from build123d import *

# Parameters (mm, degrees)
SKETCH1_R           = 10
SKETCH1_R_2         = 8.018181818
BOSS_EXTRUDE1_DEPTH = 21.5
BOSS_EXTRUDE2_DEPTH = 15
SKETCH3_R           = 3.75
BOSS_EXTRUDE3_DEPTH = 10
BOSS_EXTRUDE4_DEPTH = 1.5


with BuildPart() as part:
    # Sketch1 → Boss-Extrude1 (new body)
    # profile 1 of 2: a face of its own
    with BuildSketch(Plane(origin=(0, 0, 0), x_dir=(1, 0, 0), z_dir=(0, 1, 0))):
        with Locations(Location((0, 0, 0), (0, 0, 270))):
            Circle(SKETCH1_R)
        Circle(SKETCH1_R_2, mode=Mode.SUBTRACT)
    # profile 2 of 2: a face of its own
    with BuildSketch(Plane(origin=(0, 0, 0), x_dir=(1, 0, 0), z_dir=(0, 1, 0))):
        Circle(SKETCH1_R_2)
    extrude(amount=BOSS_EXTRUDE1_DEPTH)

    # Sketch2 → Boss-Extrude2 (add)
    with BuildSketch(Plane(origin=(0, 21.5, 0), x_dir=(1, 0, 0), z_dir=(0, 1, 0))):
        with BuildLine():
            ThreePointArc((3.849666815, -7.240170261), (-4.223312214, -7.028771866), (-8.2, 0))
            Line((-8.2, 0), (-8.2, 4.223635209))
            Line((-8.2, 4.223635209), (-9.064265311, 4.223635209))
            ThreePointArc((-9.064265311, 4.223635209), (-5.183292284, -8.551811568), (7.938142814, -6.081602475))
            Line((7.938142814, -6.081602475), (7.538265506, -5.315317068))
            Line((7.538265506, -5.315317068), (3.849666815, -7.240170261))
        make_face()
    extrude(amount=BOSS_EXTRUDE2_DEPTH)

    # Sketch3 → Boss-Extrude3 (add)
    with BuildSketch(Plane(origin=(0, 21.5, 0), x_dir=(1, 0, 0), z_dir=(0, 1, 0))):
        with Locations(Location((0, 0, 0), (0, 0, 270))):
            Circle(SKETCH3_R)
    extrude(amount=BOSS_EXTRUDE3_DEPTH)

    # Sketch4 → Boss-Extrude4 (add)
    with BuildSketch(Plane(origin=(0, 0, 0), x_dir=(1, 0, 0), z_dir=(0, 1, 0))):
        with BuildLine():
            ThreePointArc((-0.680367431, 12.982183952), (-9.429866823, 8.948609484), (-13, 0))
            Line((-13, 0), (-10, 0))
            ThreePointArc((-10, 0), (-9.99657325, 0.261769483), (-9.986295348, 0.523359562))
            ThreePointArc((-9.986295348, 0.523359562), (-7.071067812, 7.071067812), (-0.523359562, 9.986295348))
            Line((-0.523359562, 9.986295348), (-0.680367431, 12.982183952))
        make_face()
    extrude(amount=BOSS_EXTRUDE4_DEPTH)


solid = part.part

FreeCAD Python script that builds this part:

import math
import FreeCAD as App
import Part
import Sketcher
from FreeCAD import Vector
Q = App.Units.Quantity

doc = App.newDocument("Part")
body = doc.addObject("PartDesign::Body", "Body")

sketch1 = doc.addObject("Sketcher::SketchObject", "Sketch")
body.addObject(sketch1)
sketch1.AttachmentSupport = (doc.XZ_Plane, [""])
sketch1.MapMode = "FlatFace"
sketch1.addGeometry(Part.Circle(Vector(0, 0, 0), Vector(0, 0, 1), 10), False)
sketch1.addConstraint(Sketcher.Constraint("Coincident", 0, 3, -1, 1))
sketch1.addConstraint(Sketcher.Constraint("Diameter", 0, Q("20 mm")))
pad1 = doc.addObject("PartDesign::Pad", "Pad")
body.addObject(pad1)
pad1.Profile = sketch1
pad1.Length = 21.5
pad1.Reversed = True

sketch2 = doc.addObject("Sketcher::SketchObject", "Sketch001")
body.addObject(sketch2)
sketch2.AttachmentSupport = (doc.XZ_Plane, [""])
sketch2.MapMode = "FlatFace"
sketch2.AttachmentOffset = App.Placement(Vector(0, 0, -21.5), App.Rotation())
sketch2.addGeometry(Part.ArcOfCircle(Part.Circle(Vector(0, 0, 0), Vector(0, 0, 1), 8.2), math.radians(62), math.radians(180)), False)
sketch2.addGeometry(Part.LineSegment(Vector(-8.2, 0, 0), Vector(-8.2, -4.2, 0)), False)
sketch2.addGeometry(Part.LineSegment(Vector(-8.2, -4.2, 0), Vector(-9.1, -4.2, 0)), False)
sketch2.addGeometry(Part.ArcOfCircle(Part.Circle(Vector(0, 0, 0), Vector(0, 0, 1), 10), math.radians(37), math.radians(205)), False)
sketch2.addGeometry(Part.LineSegment(Vector(7.9, 6.1, 0), Vector(7.5, 5.3, 0)), False)
sketch2.addGeometry(Part.LineSegment(Vector(7.5, 5.3, 0), Vector(3.8, 7.2, 0)), False)
sketch2.addConstraint(Sketcher.Constraint("Tangent", 0, 2, 1, 1))
sketch2.addConstraint(Sketcher.Constraint("Coincident", 1, 2, 2, 1))
sketch2.addConstraint(Sketcher.Constraint("Coincident", 2, 2, 3, 2))
sketch2.addConstraint(Sketcher.Constraint("Coincident", 3, 1, 4, 1))
sketch2.addConstraint(Sketcher.Constraint("Coincident", 4, 2, 5, 1))
sketch2.addConstraint(Sketcher.Constraint("Coincident", 5, 2, 0, 1))
sketch2.addConstraint(Sketcher.Constraint("Vertical", 1))
sketch2.addConstraint(Sketcher.Constraint("Horizontal", 2))
sketch2.addConstraint(Sketcher.Constraint("Coincident", 0, 3, -1, 1))
sketch2.addConstraint(Sketcher.Constraint("Coincident", 3, 3, -1, 1))
sketch2.addConstraint(Sketcher.Constraint("Perpendicular", 4, 5))
sketch2.addConstraint(Sketcher.Constraint("Radius", 3, Q("10 mm")))
sketch2.addConstraint(Sketcher.Constraint("Radius", 0, Q("8.2 mm")))
sketch2.addConstraint(Sketcher.Constraint("DistanceX", 5, 2, 4, 2, Q("3.688599 mm")))
sketch2.addConstraint(Sketcher.Constraint("DistanceX", 2, 2, 2, 1, Q("0.864265 mm")))
sketch2.addConstraint(Sketcher.Constraint("DistanceY", -1, 1, 5, 2, Q("7.24017 mm")))
sketch2.addConstraint(Sketcher.Constraint("DistanceX", 2, 2, 3, 1, Q("17.002408 mm")))
pad2 = doc.addObject("PartDesign::Pad", "Pad001")
body.addObject(pad2)
pad2.Profile = sketch2
pad2.Length = 15
pad2.Reversed = True

sketch3 = doc.addObject("Sketcher::SketchObject", "Sketch002")
body.addObject(sketch3)
sketch3.AttachmentSupport = (doc.XZ_Plane, [""])
sketch3.MapMode = "FlatFace"
sketch3.AttachmentOffset = App.Placement(Vector(0, 0, -21.5), App.Rotation())
sketch3.addGeometry(Part.Circle(Vector(0, 0, 0), Vector(0, 0, 1), 3.8), False)
sketch3.addConstraint(Sketcher.Constraint("Coincident", 0, 3, -1, 1))
sketch3.addConstraint(Sketcher.Constraint("Diameter", 0, Q("7.5 mm")))
pad3 = doc.addObject("PartDesign::Pad", "Pad002")
body.addObject(pad3)
pad3.Profile = sketch3
pad3.Length = 10
pad3.Reversed = True

sketch4 = doc.addObject("Sketcher::SketchObject", "Sketch003")
body.addObject(sketch4)
sketch4.AttachmentSupport = (doc.XZ_Plane, [""])
sketch4.MapMode = "FlatFace"
sketch4.addGeometry(Part.ArcOfCircle(Part.Circle(Vector(0, 0, 0), Vector(0, 0, 1), 13), math.radians(180), math.radians(267)), False)
sketch4.addGeometry(Part.LineSegment(Vector(-13, 0, 0), Vector(-10, 0, 0)), False)
sketch4.addGeometry(Part.ArcOfCircle(Part.Circle(Vector(0, 0, 0), Vector(0, 0, 1), 10), math.radians(180), math.radians(183)), False)
sketch4.addGeometry(Part.ArcOfCircle(Part.Circle(Vector(0, 0, 0), Vector(0, 0, 1), 10), math.radians(-177), math.radians(-93)), False)
sketch4.addGeometry(Part.LineSegment(Vector(-0.5, -10, 0), Vector(-0.7, -13, 0)), False)
sketch4.addConstraint(Sketcher.Constraint("Coincident", 0, 1, 1, 1))
sketch4.addConstraint(Sketcher.Constraint("Coincident", 1, 2, 2, 1))
sketch4.addConstraint(Sketcher.Constraint("Tangent", 2, 2, 3, 1))
sketch4.addConstraint(Sketcher.Constraint("Coincident", 3, 2, 4, 1))
sketch4.addConstraint(Sketcher.Constraint("Coincident", 4, 2, 0, 2))
sketch4.addConstraint(Sketcher.Constraint("Horizontal", 1))
sketch4.addConstraint(Sketcher.Constraint("Coincident", 0, 3, -1, 1))
sketch4.addConstraint(Sketcher.Constraint("Coincident", 2, 3, -1, 1))
sketch4.addConstraint(Sketcher.Constraint("Equal", 2, 3))
sketch4.addConstraint(Sketcher.Constraint("PointOnObject", 0, 1, -1))
sketch4.addConstraint(Sketcher.Constraint("Radius", 0, Q("13 mm")))
sketch4.addConstraint(Sketcher.Constraint("Radius", 2, Q("10 mm")))
sketch4.addConstraint(Sketcher.Constraint("Angle", 4, Q("-93 deg")))
sketch4.addConstraint(Sketcher.Constraint("DistanceY", 2, 2, -1, 1, Q("0.52336 mm")))
sketch4.addConstraint(Sketcher.Constraint("DistanceX", 3, 2, -1, 1, Q("0.52336 mm")))
pad4 = doc.addObject("PartDesign::Pad", "Pad003")
body.addObject(pad4)
pad4.Profile = sketch4
pad4.Length = 1.5
pad4.Reversed = True

doc.recompute()
